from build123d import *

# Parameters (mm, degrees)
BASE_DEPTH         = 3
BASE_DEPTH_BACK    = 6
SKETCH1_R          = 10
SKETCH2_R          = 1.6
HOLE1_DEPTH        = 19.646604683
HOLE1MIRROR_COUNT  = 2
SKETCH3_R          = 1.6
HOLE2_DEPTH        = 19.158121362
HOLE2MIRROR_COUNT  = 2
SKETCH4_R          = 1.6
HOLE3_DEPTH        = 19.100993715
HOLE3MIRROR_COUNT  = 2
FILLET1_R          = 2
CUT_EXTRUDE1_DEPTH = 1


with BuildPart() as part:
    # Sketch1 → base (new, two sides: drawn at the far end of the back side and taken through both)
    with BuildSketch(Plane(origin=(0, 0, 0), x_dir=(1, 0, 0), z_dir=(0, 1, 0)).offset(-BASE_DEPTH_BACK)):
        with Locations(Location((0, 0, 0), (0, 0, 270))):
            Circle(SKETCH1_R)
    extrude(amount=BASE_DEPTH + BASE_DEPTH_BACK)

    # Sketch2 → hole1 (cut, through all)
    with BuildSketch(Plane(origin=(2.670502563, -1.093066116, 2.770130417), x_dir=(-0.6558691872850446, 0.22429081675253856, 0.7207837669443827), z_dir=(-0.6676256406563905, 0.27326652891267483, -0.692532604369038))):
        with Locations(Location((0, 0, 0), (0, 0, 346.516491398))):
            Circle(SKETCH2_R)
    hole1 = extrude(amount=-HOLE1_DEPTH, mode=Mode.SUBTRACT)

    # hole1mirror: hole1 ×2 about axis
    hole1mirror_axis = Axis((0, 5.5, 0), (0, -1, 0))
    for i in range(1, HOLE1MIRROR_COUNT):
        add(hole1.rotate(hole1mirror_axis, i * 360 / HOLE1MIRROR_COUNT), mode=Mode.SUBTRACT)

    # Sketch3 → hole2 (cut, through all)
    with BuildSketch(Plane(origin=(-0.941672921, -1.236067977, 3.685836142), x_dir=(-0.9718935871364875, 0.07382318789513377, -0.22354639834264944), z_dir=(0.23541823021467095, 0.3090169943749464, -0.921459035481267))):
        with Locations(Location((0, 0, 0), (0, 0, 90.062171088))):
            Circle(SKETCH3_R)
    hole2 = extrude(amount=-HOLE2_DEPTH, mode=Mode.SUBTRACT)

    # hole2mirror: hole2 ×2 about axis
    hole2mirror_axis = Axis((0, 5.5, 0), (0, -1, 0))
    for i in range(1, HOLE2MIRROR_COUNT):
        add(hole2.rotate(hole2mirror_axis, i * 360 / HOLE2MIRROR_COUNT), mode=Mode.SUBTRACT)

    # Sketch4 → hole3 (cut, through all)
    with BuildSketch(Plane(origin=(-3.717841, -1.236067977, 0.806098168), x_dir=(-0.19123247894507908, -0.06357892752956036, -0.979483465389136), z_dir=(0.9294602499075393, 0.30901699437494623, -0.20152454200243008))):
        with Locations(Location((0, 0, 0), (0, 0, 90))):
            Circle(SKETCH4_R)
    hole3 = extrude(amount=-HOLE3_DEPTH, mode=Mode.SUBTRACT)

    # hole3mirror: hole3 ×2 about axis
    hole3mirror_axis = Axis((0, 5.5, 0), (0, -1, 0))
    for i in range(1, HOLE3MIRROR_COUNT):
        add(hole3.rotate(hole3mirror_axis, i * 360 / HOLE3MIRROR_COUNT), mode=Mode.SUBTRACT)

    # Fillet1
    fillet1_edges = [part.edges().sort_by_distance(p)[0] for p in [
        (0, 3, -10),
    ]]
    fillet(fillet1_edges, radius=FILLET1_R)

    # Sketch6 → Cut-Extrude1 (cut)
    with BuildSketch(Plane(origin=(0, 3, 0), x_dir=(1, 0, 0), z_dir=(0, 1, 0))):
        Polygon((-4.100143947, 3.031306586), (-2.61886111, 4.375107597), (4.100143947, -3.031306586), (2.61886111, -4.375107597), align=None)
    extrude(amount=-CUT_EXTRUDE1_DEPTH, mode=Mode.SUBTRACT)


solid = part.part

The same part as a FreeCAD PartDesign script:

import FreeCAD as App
import Part
import Sketcher


def edges_at(feature, points):
    """Names of the edges that pass closest to the given points."""
    edges = feature.Shape.Edges
    near = lambda p: min(range(len(edges)), key=lambda i: edges[i].distToShape(Part.Vertex(*p))[0])
    return sorted({f"Edge{near(p) + 1}" for p in points})


def add_polygon(sketch, points):
    """Adds a closed chain of lines whose ends are joined by coincident constraints."""
    first, n = sketch.GeometryCount, len(points)
    for a, b in zip(points, points[1:] + points[:1]):
        sketch.addGeometry(Part.LineSegment(App.Vector(*a, 0), App.Vector(*b, 0)), False)
    for i in range(n):
        sketch.addConstraint(Sketcher.Constraint("Coincident", first + i, 2, first + (i + 1) % n, 1))

doc = App.newDocument("Part")
body = doc.addObject("PartDesign::Body", "Body")

# Sketch on XZ plane
sketch1 = body.newObject("Sketcher::SketchObject", "Sketch")
sketch1.AttachmentSupport = (doc.getObject("XZ_Plane"), [""])
sketch1.MapMode = "FlatFace"
sketch1.addGeometry(Part.Circle(App.Vector(0, 0, 0), App.Vector(0, 0, 1), 10), False)
sketch1.addConstraint(Sketcher.Constraint("Coincident", 0, 3, -1, 1))
sketch1.addConstraint(Sketcher.Constraint("Diameter", 0, 20.0))
pad1 = body.newObject("PartDesign::Pad", "Pad")
pad1.Profile = sketch1
pad1.Type = "TwoLengths"
pad1.Length = 3
pad1.Length2 = 6
pad1.Reversed = True

# Sketch on an angled plane
sketch2 = body.newObject("Sketcher::SketchObject", "Sketch001")
sketch2.Placement = App.Placement(App.Vector(2.670503, -1.093066, 2.77013), App.Rotation(App.Vector(-0.655869187, 0.224290817, 0.720783767), App.Vector(0.352294782, 0.93542452, 0.029484796), App.Vector(-0.667625641, 0.273266529, -0.692532604), "ZXY"))
sketch2.addGeometry(Part.Circle(App.Vector(0, 0, 0), App.Vector(0, 0, 1), 1.6), False)
sketch2.addConstraint(Sketcher.Constraint("Coincident", 0, 3, -1, 1))
sketch2.addConstraint(Sketcher.Constraint("Diameter", 0, 3.2))
pocket1 = body.newObject("PartDesign::Pocket", "Pocket")
pocket1.Profile = sketch2
pocket1.Type = "ThroughAll"
doc.recompute()

polarpattern = body.newObject("PartDesign::PolarPattern", "PolarPattern")
polarpattern.Originals = [pocket1]
polarpattern.Axis = (doc.getObject("Y_Axis"), [""])
polarpattern.Angle = 360
polarpattern.Occurrences = 2
body.Tip = polarpattern

# Sketch on an angled plane
sketch3 = body.newObject("Sketcher::SketchObject", "Sketch002")
sketch3.Placement = App.Placement(App.Vector(-0.941673, -1.236068, 3.685836), App.Rotation(App.Vector(-0.971893587, 0.073823188, -0.223546398), App.Vector(-0.001054592, 0.948187024, 0.317710959), App.Vector(0.23541823, 0.309016994, -0.921459035), "ZXY"))
sketch3.addGeometry(Part.Circle(App.Vector(0, 0, 0), App.Vector(0, 0, 1), 1.6), False)
sketch3.addConstraint(Sketcher.Constraint("Coincident", 0, 3, -1, 1))
sketch3.addConstraint(Sketcher.Constraint("Diameter", 0, 3.2))
pocket2 = body.newObject("PartDesign::Pocket", "Pocket001")
pocket2.Profile = sketch3
pocket2.Type = "ThroughAll"
doc.recompute()

polarpattern2 = body.newObject("PartDesign::PolarPattern", "PolarPattern001")
polarpattern2.Originals = [pocket2]
polarpattern2.Axis = (doc.getObject("Y_Axis"), [""])
polarpattern2.Angle = 360
polarpattern2.Occurrences = 2
body.Tip = polarpattern2

# Sketch on an angled plane
sketch4 = body.newObject("Sketcher::SketchObject", "Sketch003")
sketch4.Placement = App.Placement(App.Vector(-3.717841, -1.236068, 0.806098), App.Rotation(App.Vector(-0.191232479, -0.063578928, -0.979483465), App.Vector(-0.31548975, 0.948928984, 0), App.Vector(0.92946025, 0.309016994, -0.201524542), "ZXY"))
sketch4.addGeometry(Part.Circle(App.Vector(0, 0, 0), App.Vector(0, 0, 1), 1.6), False)
sketch4.addConstraint(Sketcher.Constraint("Coincident", 0, 3, -1, 1))
sketch4.addConstraint(Sketcher.Constraint("Diameter", 0, 3.2))
pocket3 = body.newObject("PartDesign::Pocket", "Pocket002")
pocket3.Profile = sketch4
pocket3.Type = "ThroughAll"
doc.recompute()

polarpattern3 = body.newObject("PartDesign::PolarPattern", "PolarPattern002")
polarpattern3.Originals = [pocket3]
polarpattern3.Axis = (doc.getObject("Y_Axis"), [""])
polarpattern3.Angle = 360
polarpattern3.Occurrences = 2
body.Tip = polarpattern3
doc.recompute()

fillet = body.newObject("PartDesign::Fillet", "Fillet")
fillet.Base = (polarpattern3, edges_at(polarpattern3, [(0, 3, -10)]))
fillet.Radius = 2

# Sketch on XZ plane
sketch5 = body.newObject("Sketcher::SketchObject", "Sketch004")
sketch5.AttachmentSupport = (doc.getObject("XZ_Plane"), [""])
sketch5.MapMode = "FlatFace"
sketch5.AttachmentOffset = App.Placement(App.Vector(0, 0, -3), App.Rotation())
add_polygon(sketch5, [(-2.6, -4.4), (-4.1, -3), (2.6, 4.4), (4.1, 3)])  # lines 0-3
sketch5.addConstraint(Sketcher.Constraint("Symmetric", 0, 2, 2, 2, -1, 1))
sketch5.addConstraint(Sketcher.Constraint("Symmetric", 1, 2, 3, 2, -1, 1))
sketch5.addConstraint(Sketcher.Constraint("Perpendicular", 0, 1))
sketch5.addConstraint(Sketcher.Constraint("Distance", 0, 2.0))
sketch5.addConstraint(Sketcher.Constraint("Distance", 1, 10.0))
sketch5.addConstraint(Sketcher.Constraint("DistanceY", 2, 2, 1, 2, 1.343801))
pocket4 = body.newObject("PartDesign::Pocket", "Pocket003")
pocket4.Profile = sketch5
pocket4.Length = 1
pocket4.Reversed = True

doc.recompute()
